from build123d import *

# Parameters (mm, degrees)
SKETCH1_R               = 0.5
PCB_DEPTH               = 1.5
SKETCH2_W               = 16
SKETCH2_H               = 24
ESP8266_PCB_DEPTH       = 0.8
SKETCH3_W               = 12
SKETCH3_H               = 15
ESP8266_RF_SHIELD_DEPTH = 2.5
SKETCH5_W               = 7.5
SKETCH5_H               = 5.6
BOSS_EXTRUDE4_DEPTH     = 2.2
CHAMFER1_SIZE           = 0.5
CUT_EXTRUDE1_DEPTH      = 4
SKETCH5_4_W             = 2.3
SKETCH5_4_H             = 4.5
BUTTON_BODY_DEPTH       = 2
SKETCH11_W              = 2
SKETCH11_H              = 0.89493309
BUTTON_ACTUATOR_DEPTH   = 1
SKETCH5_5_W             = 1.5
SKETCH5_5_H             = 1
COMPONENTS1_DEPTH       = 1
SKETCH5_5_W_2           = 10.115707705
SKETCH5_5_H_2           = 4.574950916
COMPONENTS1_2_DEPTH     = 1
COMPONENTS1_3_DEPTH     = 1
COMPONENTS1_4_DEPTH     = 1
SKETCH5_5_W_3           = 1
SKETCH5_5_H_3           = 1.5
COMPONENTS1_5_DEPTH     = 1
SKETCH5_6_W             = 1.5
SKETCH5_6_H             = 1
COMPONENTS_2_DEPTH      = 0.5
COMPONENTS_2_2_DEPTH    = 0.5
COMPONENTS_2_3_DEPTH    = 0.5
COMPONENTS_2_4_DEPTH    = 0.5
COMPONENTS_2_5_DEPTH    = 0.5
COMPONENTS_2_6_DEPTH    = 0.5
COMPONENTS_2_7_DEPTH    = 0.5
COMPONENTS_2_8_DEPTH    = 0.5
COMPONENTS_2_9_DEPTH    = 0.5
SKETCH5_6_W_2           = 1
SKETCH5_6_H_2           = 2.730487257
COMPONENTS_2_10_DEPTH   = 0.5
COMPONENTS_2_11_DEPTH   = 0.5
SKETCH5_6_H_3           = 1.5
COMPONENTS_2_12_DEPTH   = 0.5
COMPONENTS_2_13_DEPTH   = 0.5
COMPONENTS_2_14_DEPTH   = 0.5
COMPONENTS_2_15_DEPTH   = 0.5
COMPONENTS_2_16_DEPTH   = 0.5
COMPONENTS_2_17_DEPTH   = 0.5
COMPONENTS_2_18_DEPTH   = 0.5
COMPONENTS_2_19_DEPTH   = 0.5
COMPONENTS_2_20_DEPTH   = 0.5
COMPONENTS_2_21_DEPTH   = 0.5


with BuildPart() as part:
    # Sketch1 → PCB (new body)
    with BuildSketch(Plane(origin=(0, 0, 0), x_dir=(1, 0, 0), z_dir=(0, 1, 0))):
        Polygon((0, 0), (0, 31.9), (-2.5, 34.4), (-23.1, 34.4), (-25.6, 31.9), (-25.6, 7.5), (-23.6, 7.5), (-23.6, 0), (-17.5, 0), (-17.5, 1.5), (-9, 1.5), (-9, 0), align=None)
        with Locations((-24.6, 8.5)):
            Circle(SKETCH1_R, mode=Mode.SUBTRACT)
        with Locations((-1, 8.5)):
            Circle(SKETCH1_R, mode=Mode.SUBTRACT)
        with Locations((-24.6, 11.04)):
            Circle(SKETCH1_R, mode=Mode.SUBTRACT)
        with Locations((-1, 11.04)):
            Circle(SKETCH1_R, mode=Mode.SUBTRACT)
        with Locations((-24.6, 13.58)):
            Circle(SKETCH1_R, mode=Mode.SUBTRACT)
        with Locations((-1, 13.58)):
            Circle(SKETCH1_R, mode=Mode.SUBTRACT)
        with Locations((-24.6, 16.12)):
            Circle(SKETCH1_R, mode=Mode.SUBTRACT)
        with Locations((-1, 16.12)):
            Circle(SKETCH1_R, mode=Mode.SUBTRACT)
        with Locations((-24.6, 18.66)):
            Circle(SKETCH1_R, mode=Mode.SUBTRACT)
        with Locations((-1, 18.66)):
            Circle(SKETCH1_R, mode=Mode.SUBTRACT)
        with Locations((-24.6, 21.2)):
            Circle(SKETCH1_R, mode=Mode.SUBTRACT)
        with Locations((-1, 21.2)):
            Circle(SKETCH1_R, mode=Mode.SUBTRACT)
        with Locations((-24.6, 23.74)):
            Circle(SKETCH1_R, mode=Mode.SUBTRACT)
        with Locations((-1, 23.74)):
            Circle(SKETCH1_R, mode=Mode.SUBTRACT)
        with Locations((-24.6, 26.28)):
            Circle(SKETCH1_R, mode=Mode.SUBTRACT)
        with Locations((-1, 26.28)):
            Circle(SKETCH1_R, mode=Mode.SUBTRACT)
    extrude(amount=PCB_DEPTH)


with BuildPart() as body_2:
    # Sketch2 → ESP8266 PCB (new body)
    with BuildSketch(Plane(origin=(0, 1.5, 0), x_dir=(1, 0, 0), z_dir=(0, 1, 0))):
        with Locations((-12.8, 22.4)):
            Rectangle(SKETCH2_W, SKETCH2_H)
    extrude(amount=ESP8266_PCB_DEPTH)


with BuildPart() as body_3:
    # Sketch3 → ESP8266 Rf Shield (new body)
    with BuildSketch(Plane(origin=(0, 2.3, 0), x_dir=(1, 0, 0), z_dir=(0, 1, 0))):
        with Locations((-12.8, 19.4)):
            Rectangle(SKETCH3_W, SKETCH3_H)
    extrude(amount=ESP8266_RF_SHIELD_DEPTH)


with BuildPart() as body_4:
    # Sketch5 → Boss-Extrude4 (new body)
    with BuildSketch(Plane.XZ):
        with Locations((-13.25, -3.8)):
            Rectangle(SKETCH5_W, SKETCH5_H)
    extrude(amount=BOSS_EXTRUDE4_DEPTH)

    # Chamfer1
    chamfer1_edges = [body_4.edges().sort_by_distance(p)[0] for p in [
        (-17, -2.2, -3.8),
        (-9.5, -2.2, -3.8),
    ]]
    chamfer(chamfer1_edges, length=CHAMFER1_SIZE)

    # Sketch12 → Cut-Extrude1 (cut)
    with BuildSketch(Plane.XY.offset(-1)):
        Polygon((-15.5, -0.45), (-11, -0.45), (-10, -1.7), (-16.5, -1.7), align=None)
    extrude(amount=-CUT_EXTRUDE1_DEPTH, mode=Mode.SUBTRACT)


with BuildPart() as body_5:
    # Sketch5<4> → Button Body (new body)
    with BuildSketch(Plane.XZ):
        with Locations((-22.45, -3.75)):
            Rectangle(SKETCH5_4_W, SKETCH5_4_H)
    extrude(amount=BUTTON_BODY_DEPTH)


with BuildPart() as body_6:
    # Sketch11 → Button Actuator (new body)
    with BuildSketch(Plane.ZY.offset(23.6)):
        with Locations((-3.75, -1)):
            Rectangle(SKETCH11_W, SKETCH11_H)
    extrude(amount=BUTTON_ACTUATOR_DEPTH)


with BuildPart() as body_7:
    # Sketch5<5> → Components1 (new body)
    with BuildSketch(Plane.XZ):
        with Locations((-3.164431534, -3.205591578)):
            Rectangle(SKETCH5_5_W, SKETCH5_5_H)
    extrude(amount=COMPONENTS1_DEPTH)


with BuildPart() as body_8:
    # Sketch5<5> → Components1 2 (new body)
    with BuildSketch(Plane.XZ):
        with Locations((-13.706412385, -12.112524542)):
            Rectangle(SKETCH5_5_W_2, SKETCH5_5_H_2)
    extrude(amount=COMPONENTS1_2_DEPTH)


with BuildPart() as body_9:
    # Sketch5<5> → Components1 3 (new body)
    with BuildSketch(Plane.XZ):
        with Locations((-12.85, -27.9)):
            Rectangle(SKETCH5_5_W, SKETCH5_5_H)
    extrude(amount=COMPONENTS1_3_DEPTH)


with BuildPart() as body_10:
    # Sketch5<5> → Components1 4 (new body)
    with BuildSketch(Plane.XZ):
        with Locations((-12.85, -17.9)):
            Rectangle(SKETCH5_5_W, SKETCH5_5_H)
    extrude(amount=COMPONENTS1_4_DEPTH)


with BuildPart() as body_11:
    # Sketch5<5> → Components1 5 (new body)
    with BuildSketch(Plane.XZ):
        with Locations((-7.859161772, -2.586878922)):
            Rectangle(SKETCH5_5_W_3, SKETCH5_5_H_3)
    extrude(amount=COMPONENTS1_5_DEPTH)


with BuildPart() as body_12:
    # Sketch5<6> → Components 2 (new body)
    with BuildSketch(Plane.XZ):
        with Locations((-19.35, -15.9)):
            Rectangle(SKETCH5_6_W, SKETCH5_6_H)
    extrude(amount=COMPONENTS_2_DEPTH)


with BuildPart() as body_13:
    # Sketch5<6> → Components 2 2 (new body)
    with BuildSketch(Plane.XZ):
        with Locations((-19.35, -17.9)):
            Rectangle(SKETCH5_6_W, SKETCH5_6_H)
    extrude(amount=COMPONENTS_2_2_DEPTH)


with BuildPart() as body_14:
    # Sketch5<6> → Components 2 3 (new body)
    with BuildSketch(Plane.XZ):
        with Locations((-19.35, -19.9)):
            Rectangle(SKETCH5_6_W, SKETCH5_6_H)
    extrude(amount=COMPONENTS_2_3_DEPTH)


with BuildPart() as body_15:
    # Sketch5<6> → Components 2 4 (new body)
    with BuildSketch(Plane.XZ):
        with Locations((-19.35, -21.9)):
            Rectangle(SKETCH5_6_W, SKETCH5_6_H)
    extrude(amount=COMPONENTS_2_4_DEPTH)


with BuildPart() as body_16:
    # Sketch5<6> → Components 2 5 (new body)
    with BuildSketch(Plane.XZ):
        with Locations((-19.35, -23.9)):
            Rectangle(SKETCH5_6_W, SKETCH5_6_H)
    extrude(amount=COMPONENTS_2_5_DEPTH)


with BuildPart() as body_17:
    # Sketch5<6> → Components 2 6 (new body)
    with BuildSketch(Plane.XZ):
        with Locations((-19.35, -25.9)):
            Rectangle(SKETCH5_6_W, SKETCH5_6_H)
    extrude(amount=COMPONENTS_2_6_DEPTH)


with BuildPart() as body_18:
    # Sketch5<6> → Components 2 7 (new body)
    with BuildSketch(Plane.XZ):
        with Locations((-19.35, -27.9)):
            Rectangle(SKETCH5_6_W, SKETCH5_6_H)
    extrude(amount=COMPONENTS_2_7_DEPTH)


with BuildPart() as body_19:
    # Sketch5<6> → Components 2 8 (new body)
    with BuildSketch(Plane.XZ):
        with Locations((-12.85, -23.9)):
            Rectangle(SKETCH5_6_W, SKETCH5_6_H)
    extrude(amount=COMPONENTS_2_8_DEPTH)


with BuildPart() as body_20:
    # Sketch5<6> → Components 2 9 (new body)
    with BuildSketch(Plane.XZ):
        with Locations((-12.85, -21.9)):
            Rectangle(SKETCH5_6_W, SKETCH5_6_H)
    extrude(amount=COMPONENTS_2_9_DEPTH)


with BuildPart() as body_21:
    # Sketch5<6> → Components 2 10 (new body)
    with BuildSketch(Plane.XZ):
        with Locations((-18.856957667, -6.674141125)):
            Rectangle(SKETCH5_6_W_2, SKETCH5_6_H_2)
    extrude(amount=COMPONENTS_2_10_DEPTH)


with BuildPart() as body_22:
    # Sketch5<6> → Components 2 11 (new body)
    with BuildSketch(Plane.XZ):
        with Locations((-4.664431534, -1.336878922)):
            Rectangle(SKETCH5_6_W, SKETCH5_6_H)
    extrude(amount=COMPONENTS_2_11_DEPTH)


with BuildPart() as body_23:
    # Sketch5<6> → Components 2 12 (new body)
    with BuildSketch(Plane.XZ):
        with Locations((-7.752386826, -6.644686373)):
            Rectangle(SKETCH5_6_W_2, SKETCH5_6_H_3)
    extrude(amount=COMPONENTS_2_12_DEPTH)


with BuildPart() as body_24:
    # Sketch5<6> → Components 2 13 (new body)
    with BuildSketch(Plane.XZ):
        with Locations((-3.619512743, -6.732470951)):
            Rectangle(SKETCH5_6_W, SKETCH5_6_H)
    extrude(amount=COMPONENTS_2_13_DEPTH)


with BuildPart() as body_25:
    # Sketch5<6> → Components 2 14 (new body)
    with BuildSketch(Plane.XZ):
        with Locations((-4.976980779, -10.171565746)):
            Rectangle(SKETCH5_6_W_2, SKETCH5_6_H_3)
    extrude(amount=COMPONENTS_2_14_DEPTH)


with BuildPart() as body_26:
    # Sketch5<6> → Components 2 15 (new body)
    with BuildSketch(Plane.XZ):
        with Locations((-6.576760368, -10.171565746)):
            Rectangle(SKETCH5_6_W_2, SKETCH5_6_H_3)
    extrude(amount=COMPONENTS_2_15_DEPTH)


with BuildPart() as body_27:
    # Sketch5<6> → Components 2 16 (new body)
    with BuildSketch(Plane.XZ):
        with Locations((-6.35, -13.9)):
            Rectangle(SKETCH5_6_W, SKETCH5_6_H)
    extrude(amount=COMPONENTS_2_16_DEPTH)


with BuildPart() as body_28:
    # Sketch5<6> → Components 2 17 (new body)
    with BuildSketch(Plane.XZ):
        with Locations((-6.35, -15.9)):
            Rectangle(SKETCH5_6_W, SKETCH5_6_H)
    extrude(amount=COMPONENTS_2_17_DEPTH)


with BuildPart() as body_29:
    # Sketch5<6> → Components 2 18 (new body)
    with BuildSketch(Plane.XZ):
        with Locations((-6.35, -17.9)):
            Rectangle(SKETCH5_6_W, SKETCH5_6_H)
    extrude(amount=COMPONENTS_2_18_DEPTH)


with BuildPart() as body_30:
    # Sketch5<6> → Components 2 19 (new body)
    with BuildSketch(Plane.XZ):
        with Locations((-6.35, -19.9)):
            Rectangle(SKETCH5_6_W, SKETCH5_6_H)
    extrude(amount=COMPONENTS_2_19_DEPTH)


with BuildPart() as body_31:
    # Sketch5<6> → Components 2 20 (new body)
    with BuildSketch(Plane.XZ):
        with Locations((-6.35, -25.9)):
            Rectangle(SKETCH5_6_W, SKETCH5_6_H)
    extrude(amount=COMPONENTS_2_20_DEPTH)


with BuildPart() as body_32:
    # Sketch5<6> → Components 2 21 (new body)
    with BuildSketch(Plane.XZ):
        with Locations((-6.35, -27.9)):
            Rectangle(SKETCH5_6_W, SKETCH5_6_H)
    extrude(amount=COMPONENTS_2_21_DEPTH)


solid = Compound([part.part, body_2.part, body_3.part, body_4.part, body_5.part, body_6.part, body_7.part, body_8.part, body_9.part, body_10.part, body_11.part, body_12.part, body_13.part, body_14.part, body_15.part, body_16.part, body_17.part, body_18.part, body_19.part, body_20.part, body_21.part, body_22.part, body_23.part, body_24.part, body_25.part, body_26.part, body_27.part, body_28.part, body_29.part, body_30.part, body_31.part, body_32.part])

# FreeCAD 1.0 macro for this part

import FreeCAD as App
import Part
import Sketcher
from FreeCAD import Vector


def edges_at(feature, points):
    """Names of the edges that pass closest to the given points."""
    edges = feature.Shape.Edges
    near = lambda p: min(range(len(edges)), key=lambda i: edges[i].distToShape(Part.Vertex(*p))[0])
    return sorted({f"Edge{near(p) + 1}" for p in points})


def add_polygon(sketch, points):
    """Adds a closed chain of lines whose ends are joined by coincident constraints."""
    first, n = sketch.GeometryCount, len(points)
    for a, b in zip(points, points[1:] + points[:1]):
        sketch.addGeometry(Part.LineSegment(App.Vector(*a, 0), App.Vector(*b, 0)), False)
    for i in range(n):
        sketch.addConstraint(Sketcher.Constraint("Coincident", first + i, 2, first + (i + 1) % n, 1))

doc = App.newDocument("Part")
body = doc.addObject("PartDesign::Body", "Body")

# Sketch on XZ plane
sketch1 = body.newObject("Sketcher::SketchObject", "Sketch")
sketch1.AttachmentSupport = (doc.getObject("XZ_Plane"), [""])
sketch1.MapMode = "FlatFace"
add_polygon(sketch1, [(0, 0), (0, -31.9), (-2.5, -34.4), (-23.1, -34.4), (-25.6, -31.9), (-25.6, -7.5), (-23.6, -7.5), (-23.6, 0), (-17.5, 0), (-17.5, -1.5), (-9, -1.5), (-9, 0)])  # lines 0-11
sketch1.addGeometry(Part.Circle(Vector(-24.6, -8.5, 0), Vector(0, 0, 1), 0.5), False)  # 12
sketch1.addGeometry(Part.Circle(Vector(-24.6, -11.04, 0), Vector(0, 0, 1), 0.5), False)  # 13
sketch1.addGeometry(Part.Circle(Vector(-24.6, -13.58, 0), Vector(0, 0, 1), 0.5), False)  # 14
sketch1.addGeometry(Part.Circle(Vector(-24.6, -16.12, 0), Vector(0, 0, 1), 0.5), False)  # 15
sketch1.addGeometry(Part.Circle(Vector(-1, -8.5, 0), Vector(0, 0, 1), 0.5), False)  # 16
sketch1.addGeometry(Part.Circle(Vector(-1, -11.04, 0), Vector(0, 0, 1), 0.5), False)  # 17
sketch1.addGeometry(Part.Circle(Vector(-1, -13.58, 0), Vector(0, 0, 1), 0.5), False)  # 18
sketch1.addGeometry(Part.Circle(Vector(-1, -16.12, 0), Vector(0, 0, 1), 0.5), False)  # 19
sketch1.addGeometry(Part.Circle(Vector(-24.6, -18.66, 0), Vector(0, 0, 1), 0.5), False)  # 20
sketch1.addGeometry(Part.Circle(Vector(-24.6, -21.2, 0), Vector(0, 0, 1), 0.5), False)  # 21
sketch1.addGeometry(Part.Circle(Vector(-24.6, -23.74, 0), Vector(0, 0, 1), 0.5), False)  # 22
sketch1.addGeometry(Part.Circle(Vector(-24.6, -26.28, 0), Vector(0, 0, 1), 0.5), False)  # 23
sketch1.addGeometry(Part.Circle(Vector(-1, -18.66, 0), Vector(0, 0, 1), 0.5), False)  # 24
sketch1.addGeometry(Part.Circle(Vector(-1, -21.2, 0), Vector(0, 0, 1), 0.5), False)  # 25
sketch1.addGeometry(Part.Circle(Vector(-1, -23.74, 0), Vector(0, 0, 1), 0.5), False)  # 26
sketch1.addGeometry(Part.Circle(Vector(-1, -26.28, 0), Vector(0, 0, 1), 0.5), False)  # 27
sketch1.addConstraint(Sketcher.Constraint("Vertical", 0))
sketch1.addConstraint(Sketcher.Constraint("Horizontal", 2))
sketch1.addConstraint(Sketcher.Constraint("Vertical", 4))
sketch1.addConstraint(Sketcher.Constraint("Horizontal", 5))
sketch1.addConstraint(Sketcher.Constraint("Vertical", 6))
sketch1.addConstraint(Sketcher.Constraint("Horizontal", 7))
sketch1.addConstraint(Sketcher.Constraint("Vertical", 8))
sketch1.addConstraint(Sketcher.Constraint("Horizontal", 9))
sketch1.addConstraint(Sketcher.Constraint("Vertical", 10))
sketch1.addConstraint(Sketcher.Constraint("Horizontal", 11))
sketch1.addConstraint(Sketcher.Constraint("Coincident", 11, 2, -1, 1))
sketch1.addConstraint(Sketcher.Constraint("Equal", 12, 13))
sketch1.addConstraint(Sketcher.Constraint("Equal", 13, 14))
sketch1.addConstraint(Sketcher.Constraint("Equal", 14, 15))
sketch1.addConstraint(Sketcher.Constraint("Equal", 15, 16))
sketch1.addConstraint(Sketcher.Constraint("Equal", 16, 17))
sketch1.addConstraint(Sketcher.Constraint("Equal", 17, 18))
sketch1.addConstraint(Sketcher.Constraint("Equal", 18, 19))
sketch1.addConstraint(Sketcher.Constraint("Equal", 19, 20))
sketch1.addConstraint(Sketcher.Constraint("Equal", 20, 21))
sketch1.addConstraint(Sketcher.Constraint("Equal", 21, 22))
sketch1.addConstraint(Sketcher.Constraint("Equal", 22, 23))
sketch1.addConstraint(Sketcher.Constraint("Equal", 23, 24))
sketch1.addConstraint(Sketcher.Constraint("Equal", 24, 25))
sketch1.addConstraint(Sketcher.Constraint("Equal", 25, 26))
sketch1.addConstraint(Sketcher.Constraint("Equal", 26, 27))
sketch1.addConstraint(Sketcher.Constraint("PointOnObject", 6, 2, -1))
sketch1.addConstraint(Sketcher.Constraint("Perpendicular", 1, 3))
sketch1.addConstraint(Sketcher.Constraint("Horizontal", 12, 3, 16, 3))
sketch1.addConstraint(Sketcher.Constraint("Horizontal", 13, 3, 17, 3))
sketch1.addConstraint(Sketcher.Constraint("Horizontal", 14, 3, 18, 3))
sketch1.addConstraint(Sketcher.Constraint("Horizontal", 15, 3, 19, 3))
sketch1.addConstraint(Sketcher.Constraint("Horizontal", 20, 3, 24, 3))
sketch1.addConstraint(Sketcher.Constraint("Horizontal", 21, 3, 25, 3))
sketch1.addConstraint(Sketcher.Constraint("Horizontal", 22, 3, 26, 3))
sketch1.addConstraint(Sketcher.Constraint("Horizontal", 23, 3, 27, 3))
sketch1.addConstraint(Sketcher.Constraint("Horizontal", 0, 2, 3, 2))
sketch1.addConstraint(Sketcher.Constraint("Vertical", 12, 3, 13, 3))
sketch1.addConstraint(Sketcher.Constraint("Vertical", 13, 3, 14, 3))
sketch1.addConstraint(Sketcher.Constraint("Vertical", 14, 3, 15, 3))
sketch1.addConstraint(Sketcher.Constraint("Vertical", 16, 3, 17, 3))
sketch1.addConstraint(Sketcher.Constraint("Vertical", 17, 3, 18, 3))
sketch1.addConstraint(Sketcher.Constraint("Vertical", 18, 3, 19, 3))
sketch1.addConstraint(Sketcher.Constraint("Vertical", 15, 3, 20, 3))
sketch1.addConstraint(Sketcher.Constraint("Vertical", 20, 3, 21, 3))
sketch1.addConstraint(Sketcher.Constraint("Vertical", 21, 3, 22, 3))
sketch1.addConstraint(Sketcher.Constraint("Vertical", 22, 3, 23, 3))
sketch1.addConstraint(Sketcher.Constraint("Vertical", 19, 3, 24, 3))
sketch1.addConstraint(Sketcher.Constraint("Vertical", 24, 3, 25, 3))
sketch1.addConstraint(Sketcher.Constraint("Vertical", 25, 3, 26, 3))
sketch1.addConstraint(Sketcher.Constraint("Vertical", 26, 3, 27, 3))
sketch1.addConstraint(Sketcher.Constraint("Equal", 1, 3))
sketch1.addConstraint(Sketcher.Constraint("Diameter", 12, 1.0))
sketch1.addConstraint(Sketcher.Constraint("DistanceX", 5, 1, 5, 2, 2.0))
sketch1.addConstraint(Sketcher.Constraint("DistanceX", 11, 1, 11, 2, 9.0))
sketch1.addConstraint(Sketcher.Constraint("DistanceX", 2, 2, 2, 1, 20.6))
sketch1.addConstraint(Sketcher.Constraint("DistanceX", 7, 1, 7, 2, 6.1))
sketch1.addConstraint(Sketcher.Constraint("DistanceX", 9, 1, 9, 2, 8.5))
sketch1.addConstraint(Sketcher.Constraint("DistanceY", 0, 2, 0, 1, 31.9))
sketch1.addConstraint(Sketcher.Constraint("DistanceY", 4, 1, 4, 2, 24.4))
sketch1.addConstraint(Sketcher.Constraint("DistanceY", 8, 2, 8, 1, 1.5))
sketch1.addConstraint(Sketcher.Constraint("DistanceX", 16, 3, -1, 1, 1.0))
sketch1.addConstraint(Sketcher.Constraint("DistanceX", 3, 2, 23, 3, 1.0))
sketch1.addConstraint(Sketcher.Constraint("DistanceY", 12, 3, 4, 2, 1.0))
sketch1.addConstraint(Sketcher.Constraint("DistanceY", 21, 3, -1, 1, 21.2))
sketch1.addConstraint(Sketcher.Constraint("DistanceY", 22, 3, 13, 3, 12.7))
sketch1.addConstraint(Sketcher.Constraint("DistanceY", 23, 3, 14, 3, 12.7))
sketch1.addConstraint(Sketcher.Constraint("DistanceY", 13, 3, -1, 1, 11.04))
sketch1.addConstraint(Sketcher.Constraint("DistanceY", 14, 3, -1, 1, 13.58))
sketch1.addConstraint(Sketcher.Constraint("DistanceY", 15, 3, -1, 1, 16.12))
sketch1.addConstraint(Sketcher.Constraint("DistanceY", 20, 3, -1, 1, 18.66))
pad1 = body.newObject("PartDesign::Pad", "Pad")
pad1.Profile = sketch1
pad1.Length = 1.5
pad1.Reversed = True
body2 = doc.addObject("PartDesign::Body", "Body001")

# Sketch on XZ plane
sketch2 = body2.newObject("Sketcher::SketchObject", "Sketch001")
sketch2.AttachmentSupport = (doc.getObject("XZ_Plane001"), [""])
sketch2.MapMode = "FlatFace"
sketch2.AttachmentOffset = App.Placement(Vector(0, 0, -1.5), App.Rotation())
add_polygon(sketch2, [(-20.8, -34.4), (-20.8, -10.4), (-4.8, -10.4), (-4.8, -34.4)])  # lines 0-3
sketch2.addConstraint(Sketcher.Constraint("Vertical", 0))
sketch2.addConstraint(Sketcher.Constraint("Horizontal", 1))
sketch2.addConstraint(Sketcher.Constraint("Vertical", 2))
sketch2.addConstraint(Sketcher.Constraint("Horizontal", 3))
sketch2.addConstraint(Sketcher.Constraint("DistanceX", 1, 1, 1, 2, 16.0))
sketch2.addConstraint(Sketcher.Constraint("DistanceY", 0, 1, 0, 2, 24.0))
sketch2.addConstraint(Sketcher.Constraint("DistanceX", 0, 2, -1, 1, 20.8))
sketch2.addConstraint(Sketcher.Constraint("DistanceY", 0, 2, -1, 1, 10.4))
pad2 = body2.newObject("PartDesign::Pad", "Pad001")
pad2.Profile = sketch2
pad2.Length = 0.8
pad2.Reversed = True
body3 = doc.addObject("PartDesign::Body", "Body002")

# Sketch on XZ plane
sketch3 = body3.newObject("Sketcher::SketchObject", "Sketch002")
sketch3.AttachmentSupport = (doc.getObject("XZ_Plane002"), [""])
sketch3.MapMode = "FlatFace"
sketch3.AttachmentOffset = App.Placement(Vector(0, 0, -2.3), App.Rotation())
add_polygon(sketch3, [(-18.8, -26.9), (-18.8, -11.9), (-6.8, -11.9), (-6.8, -26.9)])  # lines 0-3
sketch3.addConstraint(Sketcher.Constraint("Vertical", 0))
sketch3.addConstraint(Sketcher.Constraint("Horizontal", 1))
sketch3.addConstraint(Sketcher.Constraint("Vertical", 2))
sketch3.addConstraint(Sketcher.Constraint("Horizontal", 3))
sketch3.addConstraint(Sketcher.Constraint("DistanceX", 1, 1, 1, 2, 12.0))
sketch3.addConstraint(Sketcher.Constraint("DistanceY", 0, 1, 0, 2, 15.0))
sketch3.addConstraint(Sketcher.Constraint("DistanceX", 0, 2, -1, 1, 18.8))
sketch3.addConstraint(Sketcher.Constraint("DistanceY", 0, 2, -1, 1, 11.9))
pad3 = body3.newObject("PartDesign::Pad", "Pad002")
pad3.Profile = sketch3
pad3.Length = 2.5
pad3.Reversed = True
body4 = doc.addObject("PartDesign::Body", "Body003")

# Sketch on XZ plane
sketch4 = body4.newObject("Sketcher::SketchObject", "Sketch003")
sketch4.AttachmentSupport = (doc.getObject("XZ_Plane003"), [""])
sketch4.MapMode = "FlatFace"
add_polygon(sketch4, [(-17, -1), (-17, -6.6), (-9.5, -6.6), (-9.5, -1)])  # lines 0-3
sketch4.addConstraint(Sketcher.Constraint("Vertical", 0))
sketch4.addConstraint(Sketcher.Constraint("Horizontal", 1))
sketch4.addConstraint(Sketcher.Constraint("Vertical", 2))
sketch4.addConstraint(Sketcher.Constraint("Horizontal", 3))
sketch4.addConstraint(Sketcher.Constraint("DistanceX", 1, 1, 1, 2, 7.5))
sketch4.addConstraint(Sketcher.Constraint("DistanceY", 0, 2, 0, 1, 5.6))
sketch4.addConstraint(Sketcher.Constraint("DistanceX", 0, 2, -1, 1, 17.0))
sketch4.addConstraint(Sketcher.Constraint("DistanceY", 2, 2, -1, 1, 1.0))
pad4 = body4.newObject("PartDesign::Pad", "Pad003")
pad4.Profile = sketch4
pad4.Length = 2.2
doc.recompute()

chamfer = body4.newObject("PartDesign::Chamfer", "Chamfer")
chamfer.Base = (pad4, edges_at(pad4, [(-17, -2.2, -3.8), (-9.5, -2.2, -3.8)]))
chamfer.Size = 0.5

# Sketch on XY plane
sketch5 = body4.newObject("Sketcher::SketchObject", "Sketch004")
sketch5.AttachmentSupport = (doc.getObject("XY_Plane003"), [""])
sketch5.MapMode = "FlatFace"
sketch5.AttachmentOffset = App.Placement(Vector(0, 0, -1), App.Rotation())
add_polygon(sketch5, [(-11, -0.45), (-15.5, -0.45), (-16.5, -1.7), (-10, -1.7)])  # lines 0-3
sketch5.addConstraint(Sketcher.Constraint("Horizontal", 0))
sketch5.addConstraint(Sketcher.Constraint("Horizontal", 2))
sketch5.addConstraint(Sketcher.Constraint("Equal", 1, 3))
sketch5.addConstraint(Sketcher.Constraint("DistanceX", 0, 2, 0, 1, 4.5))
sketch5.addConstraint(Sketcher.Constraint("DistanceX", 2, 1, 2, 2, 6.5))
sketch5.addConstraint(Sketcher.Constraint("DistanceX", 2, 2, -1, 1, 10.0))
sketch5.addConstraint(Sketcher.Constraint("DistanceY", 1, 2, -1, 1, 1.7))
sketch5.addConstraint(Sketcher.Constraint("DistanceY", 0, 2, -1, 1, 0.45))
pocket1 = body4.newObject("PartDesign::Pocket", "Pocket")
pocket1.Profile = sketch5
pocket1.Length = 4
body5 = doc.addObject("PartDesign::Body", "Body004")

# Sketch on XZ plane
sketch6 = body5.newObject("Sketcher::SketchObject", "Sketch005")
sketch6.AttachmentSupport = (doc.getObject("XZ_Plane004"), [""])
sketch6.MapMode = "FlatFace"
add_polygon(sketch6, [(-23.6, -1.5), (-23.6, -6), (-21.3, -6), (-21.3, -1.5)])  # lines 0-3
sketch6.addConstraint(Sketcher.Constraint("Vertical", 0))
sketch6.addConstraint(Sketcher.Constraint("Horizontal", 1))
sketch6.addConstraint(Sketcher.Constraint("Vertical", 2))
sketch6.addConstraint(Sketcher.Constraint("Horizontal", 3))
sketch6.addConstraint(Sketcher.Constraint("DistanceX", 1, 1, 1, 2, 2.3))
sketch6.addConstraint(Sketcher.Constraint("DistanceY", 0, 2, 0, 1, 4.5))
sketch6.addConstraint(Sketcher.Constraint("DistanceY", 0, 2, -1, 1, 6.0))
sketch6.addConstraint(Sketcher.Constraint("DistanceX", 0, 2, -1, 1, 23.6))
pad5 = body5.newObject("PartDesign::Pad", "Pad004")
pad5.Profile = sketch6
pad5.Length = 2
body6 = doc.addObject("PartDesign::Body", "Body005")

# Sketch on YZ plane
sketch7 = body6.newObject("Sketcher::SketchObject", "Sketch006")
sketch7.AttachmentSupport = (doc.getObject("YZ_Plane005"), [""])
sketch7.MapMode = "FlatFace"
sketch7.AttachmentOffset = App.Placement(Vector(0, 0, -23.6), App.Rotation())
add_polygon(sketch7, [(-0.552533, -4.75), (-1.447467, -4.75), (-1.447467, -2.75), (-0.552533, -2.75)])  # lines 0-3
sketch7.addConstraint(Sketcher.Constraint("Horizontal", 0))
sketch7.addConstraint(Sketcher.Constraint("Vertical", 1))
sketch7.addConstraint(Sketcher.Constraint("Horizontal", 2))
sketch7.addConstraint(Sketcher.Constraint("Vertical", 3))
sketch7.addConstraint(Sketcher.Constraint("DistanceY", 1, 1, 1, 2, 2.0))
sketch7.addConstraint(Sketcher.Constraint("DistanceY", 0, 2, -1, 1, 4.75))
sketch7.addConstraint(Sketcher.Constraint("DistanceX", 0, 2, 0, 1, 0.894933))
sketch7.addConstraint(Sketcher.Constraint("DistanceX", 0, 2, -1, 1, 1.447467))
pad6 = body6.newObject("PartDesign::Pad", "Pad005")
pad6.Profile = sketch7
pad6.Length = 1
pad6.Reversed = True
body7 = doc.addObject("PartDesign::Body", "Body006")

# Sketch on XZ plane
sketch8 = body7.newObject("Sketcher::SketchObject", "Sketch007")
sketch8.AttachmentSupport = (doc.getObject("XZ_Plane006"), [""])
sketch8.MapMode = "FlatFace"
add_polygon(sketch8, [(-3.914432, -2.705592), (-3.914432, -3.705592), (-2.414432, -3.705592), (-2.414432, -2.705592)])  # lines 0-3
sketch8.addConstraint(Sketcher.Constraint("Vertical", 0))
sketch8.addConstraint(Sketcher.Constraint("Horizontal", 1))
sketch8.addConstraint(Sketcher.Constraint("Vertical", 2))
sketch8.addConstraint(Sketcher.Constraint("Horizontal", 3))
sketch8.addConstraint(Sketcher.Constraint("DistanceY", 0, 2, 0, 1, 1.0))
sketch8.addConstraint(Sketcher.Constraint("DistanceX", 1, 1, 1, 2, 1.5))
sketch8.addConstraint(Sketcher.Constraint("DistanceX", 0, 2, -1, 1, 3.914432))
sketch8.addConstraint(Sketcher.Constraint("DistanceY", 0, 2, -1, 1, 3.705592))
pad7 = body7.newObject("PartDesign::Pad", "Pad006")
pad7.Profile = sketch8
pad7.Length = 1
body8 = doc.addObject("PartDesign::Body", "Body007")

# Sketch on XZ plane
sketch9 = body8.newObject("Sketcher::SketchObject", "Sketch008")
sketch9.AttachmentSupport = (doc.getObject("XZ_Plane007"), [""])
sketch9.MapMode = "FlatFace"
add_polygon(sketch9, [(-18.764266, -9.825049), (-18.764266, -14.4), (-8.648559, -14.4), (-8.648559, -9.825049)])  # lines 0-3
sketch9.addConstraint(Sketcher.Constraint("Vertical", 0))
sketch9.addConstraint(Sketcher.Constraint("Horizontal", 1))
sketch9.addConstraint(Sketcher.Constraint("Vertical", 2))
sketch9.addConstraint(Sketcher.Constraint("Horizontal", 3))
sketch9.addConstraint(Sketcher.Constraint("DistanceY", 0, 2, -1, 1, 14.4))
sketch9.addConstraint(Sketcher.Constraint("DistanceY", 0, 2, 0, 1, 4.574951))
sketch9.addConstraint(Sketcher.Constraint("DistanceX", 1, 1, 1, 2, 10.115708))
sketch9.addConstraint(Sketcher.Constraint("DistanceX", 1, 2, -1, 1, 8.648559))
pad8 = body8.newObject("PartDesign::Pad", "Pad007")
pad8.Profile = sketch9
pad8.Length = 1
body9 = doc.addObject("PartDesign::Body", "Body008")

# Sketch on XZ plane
sketch10 = body9.newObject("Sketcher::SketchObject", "Sketch009")
sketch10.AttachmentSupport = (doc.getObject("XZ_Plane008"), [""])
sketch10.MapMode = "FlatFace"
add_polygon(sketch10, [(-13.6, -27.4), (-13.6, -28.4), (-12.1, -28.4), (-12.1, -27.4)])  # lines 0-3
sketch10.addConstraint(Sketcher.Constraint("Vertical", 0))
sketch10.addConstraint(Sketcher.Constraint("Horizontal", 1))
sketch10.addConstraint(Sketcher.Constraint("Vertical", 2))
sketch10.addConstraint(Sketcher.Constraint("Horizontal", 3))
sketch10.addConstraint(Sketcher.Constraint("DistanceY", 0, 2, 0, 1, 1.0))
sketch10.addConstraint(Sketcher.Constraint("DistanceX", 1, 1, 1, 2, 1.5))
sketch10.addConstraint(Sketcher.Constraint("DistanceX", 0, 2, -1, 1, 13.6))
sketch10.addConstraint(Sketcher.Constraint("DistanceY", 0, 2, -1, 1, 28.4))
pad9 = body9.newObject("PartDesign::Pad", "Pad008")
pad9.Profile = sketch10
pad9.Length = 1
body10 = doc.addObject("PartDesign::Body", "Body009")

# Sketch on XZ plane
sketch11 = body10.newObject("Sketcher::SketchObject", "Sketch010")
sketch11.AttachmentSupport = (doc.getObject("XZ_Plane009"), [""])
sketch11.MapMode = "FlatFace"
add_polygon(sketch11, [(-13.6, -17.4), (-13.6, -18.4), (-12.1, -18.4), (-12.1, -17.4)])  # lines 0-3
sketch11.addConstraint(Sketcher.Constraint("Vertical", 0))
sketch11.addConstraint(Sketcher.Constraint("Horizontal", 1))
sketch11.addConstraint(Sketcher.Constraint("Vertical", 2))
sketch11.addConstraint(Sketcher.Constraint("Horizontal", 3))
sketch11.addConstraint(Sketcher.Constraint("DistanceY", 0, 2, 0, 1, 1.0))
sketch11.addConstraint(Sketcher.Constraint("DistanceX", 1, 1, 1, 2, 1.5))
sketch11.addConstraint(Sketcher.Constraint("DistanceX", 0, 2, -1, 1, 13.6))
sketch11.addConstraint(Sketcher.Constraint("DistanceY", 0, 2, -1, 1, 18.4))
pad10 = body10.newObject("PartDesign::Pad", "Pad009")
pad10.Profile = sketch11
pad10.Length = 1
body11 = doc.addObject("PartDesign::Body", "Body010")

# Sketch on XZ plane
sketch12 = body11.newObject("Sketcher::SketchObject", "Sketch011")
sketch12.AttachmentSupport = (doc.getObject("XZ_Plane010"), [""])
sketch12.MapMode = "FlatFace"
add_polygon(sketch12, [(-8.359162, -1.836879), (-8.359162, -3.336879), (-7.359162, -3.336879), (-7.359162, -1.836879)])  # lines 0-3
sketch12.addConstraint(Sketcher.Constraint("Vertical", 0))
sketch12.addConstraint(Sketcher.Constraint("Horizontal", 1))
sketch12.addConstraint(Sketcher.Constraint("Vertical", 2))
sketch12.addConstraint(Sketcher.Constraint("Horizontal", 3))
sketch12.addConstraint(Sketcher.Constraint("DistanceX", 1, 1, 1, 2, 1.0))
sketch12.addConstraint(Sketcher.Constraint("DistanceY", 0, 2, 0, 1, 1.5))
sketch12.addConstraint(Sketcher.Constraint("DistanceX", 0, 2, -1, 1, 8.359162))
sketch12.addConstraint(Sketcher.Constraint("DistanceY", 0, 2, -1, 1, 3.336879))
pad11 = body11.newObject("PartDesign::Pad", "Pad010")
pad11.Profile = sketch12
pad11.Length = 1
body12 = doc.addObject("PartDesign::Body", "Body011")

# Sketch on XZ plane
sketch13 = body12.newObject("Sketcher::SketchObject", "Sketch012")
sketch13.AttachmentSupport = (doc.getObject("XZ_Plane011"), [""])
sketch13.MapMode = "FlatFace"
add_polygon(sketch13, [(-20.1, -15.4), (-20.1, -16.4), (-18.6, -16.4), (-18.6, -15.4)])  # lines 0-3
sketch13.addConstraint(Sketcher.Constraint("Vertical", 0))
sketch13.addConstraint(Sketcher.Constraint("Horizontal", 1))
sketch13.addConstraint(Sketcher.Constraint("Vertical", 2))
sketch13.addConstraint(Sketcher.Constraint("Horizontal", 3))
sketch13.addConstraint(Sketcher.Constraint("DistanceY", 0, 2, 0, 1, 1.0))
sketch13.addConstraint(Sketcher.Constraint("DistanceX", 1, 1, 1, 2, 1.5))
sketch13.addConstraint(Sketcher.Constraint("DistanceX", 0, 2, -1, 1, 20.1))
sketch13.addConstraint(Sketcher.Constraint("DistanceY", 0, 2, -1, 1, 16.4))
pad12 = body12.newObject("PartDesign::Pad", "Pad011")
pad12.Profile = sketch13
pad12.Length = 0.5
body13 = doc.addObject("PartDesign::Body", "Body012")

# Sketch on XZ plane
sketch14 = body13.newObject("Sketcher::SketchObject", "Sketch013")
sketch14.AttachmentSupport = (doc.getObject("XZ_Plane012"), [""])
sketch14.MapMode = "FlatFace"
add_polygon(sketch14, [(-20.1, -17.4), (-20.1, -18.4), (-18.6, -18.4), (-18.6, -17.4)])  # lines 0-3
sketch14.addConstraint(Sketcher.Constraint("Vertical", 0))
sketch14.addConstraint(Sketcher.Constraint("Horizontal", 1))
sketch14.addConstraint(Sketcher.Constraint("Vertical", 2))
sketch14.addConstraint(Sketcher.Constraint("Horizontal", 3))
sketch14.addConstraint(Sketcher.Constraint("DistanceY", 0, 2, 0, 1, 1.0))
sketch14.addConstraint(Sketcher.Constraint("DistanceX", 1, 1, 1, 2, 1.5))
sketch14.addConstraint(Sketcher.Constraint("DistanceX", 0, 2, -1, 1, 20.1))
sketch14.addConstraint(Sketcher.Constraint("DistanceY", 0, 2, -1, 1, 18.4))
pad13 = body13.newObject("PartDesign::Pad", "Pad012")
pad13.Profile = sketch14
pad13.Length = 0.5
body14 = doc.addObject("PartDesign::Body", "Body013")

# Sketch on XZ plane
sketch15 = body14.newObject("Sketcher::SketchObject", "Sketch014")
sketch15.AttachmentSupport = (doc.getObject("XZ_Plane013"), [""])
sketch15.MapMode = "FlatFace"
add_polygon(sketch15, [(-20.1, -19.4), (-20.1, -20.4), (-18.6, -20.4), (-18.6, -19.4)])  # lines 0-3
sketch15.addConstraint(Sketcher.Constraint("Vertical", 0))
sketch15.addConstraint(Sketcher.Constraint("Horizontal", 1))
sketch15.addConstraint(Sketcher.Constraint("Vertical", 2))
sketch15.addConstraint(Sketcher.Constraint("Horizontal", 3))
sketch15.addConstraint(Sketcher.Constraint("DistanceY", 0, 2, 0, 1, 1.0))
sketch15.addConstraint(Sketcher.Constraint("DistanceX", 1, 1, 1, 2, 1.5))
sketch15.addConstraint(Sketcher.Constraint("DistanceX", 0, 2, -1, 1, 20.1))
sketch15.addConstraint(Sketcher.Constraint("DistanceY", 0, 2, -1, 1, 20.4))
pad14 = body14.newObject("PartDesign::Pad", "Pad013")
pad14.Profile = sketch15
pad14.Length = 0.5
body15 = doc.addObject("PartDesign::Body", "Body014")

# Sketch on XZ plane
sketch16 = body15.newObject("Sketcher::SketchObject", "Sketch015")
sketch16.AttachmentSupport = (doc.getObject("XZ_Plane014"), [""])
sketch16.MapMode = "FlatFace"
add_polygon(sketch16, [(-20.1, -21.4), (-20.1, -22.4), (-18.6, -22.4), (-18.6, -21.4)])  # lines 0-3
sketch16.addConstraint(Sketcher.Constraint("Vertical", 0))
sketch16.addConstraint(Sketcher.Constraint("Horizontal", 1))
sketch16.addConstraint(Sketcher.Constraint("Vertical", 2))
sketch16.addConstraint(Sketcher.Constraint("Horizontal", 3))
sketch16.addConstraint(Sketcher.Constraint("DistanceY", 0, 2, 0, 1, 1.0))
sketch16.addConstraint(Sketcher.Constraint("DistanceX", 1, 1, 1, 2, 1.5))
sketch16.addConstraint(Sketcher.Constraint("DistanceX", 0, 2, -1, 1, 20.1))
sketch16.addConstraint(Sketcher.Constraint("DistanceY", 0, 2, -1, 1, 22.4))
pad15 = body15.newObject("PartDesign::Pad", "Pad014")
pad15.Profile = sketch16
pad15.Length = 0.5
body16 = doc.addObject("PartDesign::Body", "Body015")

# Sketch on XZ plane
sketch17 = body16.newObject("Sketcher::SketchObject", "Sketch016")
sketch17.AttachmentSupport = (doc.getObject("XZ_Plane015"), [""])
sketch17.MapMode = "FlatFace"
add_polygon(sketch17, [(-20.1, -23.4), (-20.1, -24.4), (-18.6, -24.4), (-18.6, -23.4)])  # lines 0-3
sketch17.addConstraint(Sketcher.Constraint("Vertical", 0))
sketch17.addConstraint(Sketcher.Constraint("Horizontal", 1))
sketch17.addConstraint(Sketcher.Constraint("Vertical", 2))
sketch17.addConstraint(Sketcher.Constraint("Horizontal", 3))
sketch17.addConstraint(Sketcher.Constraint("DistanceY", 0, 2, 0, 1, 1.0))
sketch17.addConstraint(Sketcher.Constraint("DistanceX", 1, 1, 1, 2, 1.5))
sketch17.addConstraint(Sketcher.Constraint("DistanceX", 0, 2, -1, 1, 20.1))
sketch17.addConstraint(Sketcher.Constraint("DistanceY", 0, 2, -1, 1, 24.4))
pad16 = body16.newObject("PartDesign::Pad", "Pad015")
pad16.Profile = sketch17
pad16.Length = 0.5
body17 = doc.addObject("PartDesign::Body", "Body016")

# Sketch on XZ plane
sketch18 = body17.newObject("Sketcher::SketchObject", "Sketch017")
sketch18.AttachmentSupport = (doc.getObject("XZ_Plane016"), [""])
sketch18.MapMode = "FlatFace"
add_polygon(sketch18, [(-20.1, -25.4), (-20.1, -26.4), (-18.6, -26.4), (-18.6, -25.4)])  # lines 0-3
sketch18.addConstraint(Sketcher.Constraint("Vertical", 0))
sketch18.addConstraint(Sketcher.Constraint("Horizontal", 1))
sketch18.addConstraint(Sketcher.Constraint("Vertical", 2))
sketch18.addConstraint(Sketcher.Constraint("Horizontal", 3))
sketch18.addConstraint(Sketcher.Constraint("DistanceY", 0, 2, 0, 1, 1.0))
sketch18.addConstraint(Sketcher.Constraint("DistanceX", 1, 1, 1, 2, 1.5))
sketch18.addConstraint(Sketcher.Constraint("DistanceX", 0, 2, -1, 1, 20.1))
sketch18.addConstraint(Sketcher.Constraint("DistanceY", 0, 2, -1, 1, 26.4))
pad17 = body17.newObject("PartDesign::Pad", "Pad016")
pad17.Profile = sketch18
pad17.Length = 0.5
body18 = doc.addObject("PartDesign::Body", "Body017")

# Sketch on XZ plane
sketch19 = body18.newObject("Sketcher::SketchObject", "Sketch018")
sketch19.AttachmentSupport = (doc.getObject("XZ_Plane017"), [""])
sketch19.MapMode = "FlatFace"
add_polygon(sketch19, [(-20.1, -27.4), (-20.1, -28.4), (-18.6, -28.4), (-18.6, -27.4)])  # lines 0-3
sketch19.addConstraint(Sketcher.Constraint("Vertical", 0))
sketch19.addConstraint(Sketcher.Constraint("Horizontal", 1))
sketch19.addConstraint(Sketcher.Constraint("Vertical", 2))
sketch19.addConstraint(Sketcher.Constraint("Horizontal", 3))
sketch19.addConstraint(Sketcher.Constraint("DistanceY", 0, 2, 0, 1, 1.0))
sketch19.addConstraint(Sketcher.Constraint("DistanceX", 1, 1, 1, 2, 1.5))
sketch19.addConstraint(Sketcher.Constraint("DistanceX", 0, 2, -1, 1, 20.1))
sketch19.addConstraint(Sketcher.Constraint("DistanceY", 0, 2, -1, 1, 28.4))
pad18 = body18.newObject("PartDesign::Pad", "Pad017")
pad18.Profile = sketch19
pad18.Length = 0.5
body19 = doc.addObject("PartDesign::Body", "Body018")

# Sketch on XZ plane
sketch20 = body19.newObject("Sketcher::SketchObject", "Sketch019")
sketch20.AttachmentSupport = (doc.getObject("XZ_Plane018"), [""])
sketch20.MapMode = "FlatFace"
add_polygon(sketch20, [(-13.6, -23.4), (-13.6, -24.4), (-12.1, -24.4), (-12.1, -23.4)])  # lines 0-3
sketch20.addConstraint(Sketcher.Constraint("Vertical", 0))
sketch20.addConstraint(Sketcher.Constraint("Horizontal", 1))
sketch20.addConstraint(Sketcher.Constraint("Vertical", 2))
sketch20.addConstraint(Sketcher.Constraint("Horizontal", 3))
sketch20.addConstraint(Sketcher.Constraint("DistanceY", 0, 2, 0, 1, 1.0))
sketch20.addConstraint(Sketcher.Constraint("DistanceX", 1, 1, 1, 2, 1.5))
sketch20.addConstraint(Sketcher.Constraint("DistanceX", 0, 2, -1, 1, 13.6))
sketch20.addConstraint(Sketcher.Constraint("DistanceY", 0, 2, -1, 1, 24.4))
pad19 = body19.newObject("PartDesign::Pad", "Pad018")
pad19.Profile = sketch20
pad19.Length = 0.5
body20 = doc.addObject("PartDesign::Body", "Body019")

# Sketch on XZ plane
sketch21 = body20.newObject("Sketcher::SketchObject", "Sketch020")
sketch21.AttachmentSupport = (doc.getObject("XZ_Plane019"), [""])
sketch21.MapMode = "FlatFace"
add_polygon(sketch21, [(-13.6, -21.4), (-13.6, -22.4), (-12.1, -22.4), (-12.1, -21.4)])  # lines 0-3
sketch21.addConstraint(Sketcher.Constraint("Vertical", 0))
sketch21.addConstraint(Sketcher.Constraint("Horizontal", 1))
sketch21.addConstraint(Sketcher.Constraint("Vertical", 2))
sketch21.addConstraint(Sketcher.Constraint("Horizontal", 3))
sketch21.addConstraint(Sketcher.Constraint("DistanceY", 0, 2, 0, 1, 1.0))
sketch21.addConstraint(Sketcher.Constraint("DistanceX", 1, 1, 1, 2, 1.5))
sketch21.addConstraint(Sketcher.Constraint("DistanceX", 0, 2, -1, 1, 13.6))
sketch21.addConstraint(Sketcher.Constraint("DistanceY", 0, 2, -1, 1, 22.4))
pad20 = body20.newObject("PartDesign::Pad", "Pad019")
pad20.Profile = sketch21
pad20.Length = 0.5
body21 = doc.addObject("PartDesign::Body", "Body020")

# Sketch on XZ plane
sketch22 = body21.newObject("Sketcher::SketchObject", "Sketch021")
sketch22.AttachmentSupport = (doc.getObject("XZ_Plane020"), [""])
sketch22.MapMode = "FlatFace"
add_polygon(sketch22, [(-19.356958, -5.308897), (-19.356958, -8.039385), (-18.356958, -8.039385), (-18.356958, -5.308897)])  # lines 0-3
sketch22.addConstraint(Sketcher.Constraint("Vertical", 0))
sketch22.addConstraint(Sketcher.Constraint("Horizontal", 1))
sketch22.addConstraint(Sketcher.Constraint("Vertical", 2))
sketch22.addConstraint(Sketcher.Constraint("Horizontal", 3))
sketch22.addConstraint(Sketcher.Constraint("DistanceX", 1, 1, 1, 2, 1.0))
sketch22.addConstraint(Sketcher.Constraint("DistanceY", 0, 2, 0, 1, 2.730487))
sketch22.addConstraint(Sketcher.Constraint("DistanceX", 0, 2, -1, 1, 19.356958))
sketch22.addConstraint(Sketcher.Constraint("DistanceY", 0, 2, -1, 1, 8.039385))
pad21 = body21.newObject("PartDesign::Pad", "Pad020")
pad21.Profile = sketch22
pad21.Length = 0.5
body22 = doc.addObject("PartDesign::Body", "Body021")

# Sketch on XZ plane
sketch23 = body22.newObject("Sketcher::SketchObject", "Sketch022")
sketch23.AttachmentSupport = (doc.getObject("XZ_Plane021"), [""])
sketch23.MapMode = "FlatFace"
add_polygon(sketch23, [(-5.414432, -0.836879), (-5.414432, -1.836879), (-3.914432, -1.836879), (-3.914432, -0.836879)])  # lines 0-3
sketch23.addConstraint(Sketcher.Constraint("Vertical", 0))
sketch23.addConstraint(Sketcher.Constraint("Horizontal", 1))
sketch23.addConstraint(Sketcher.Constraint("Vertical", 2))
sketch23.addConstraint(Sketcher.Constraint("Horizontal", 3))
sketch23.addConstraint(Sketcher.Constraint("DistanceY", 0, 2, 0, 1, 1.0))
sketch23.addConstraint(Sketcher.Constraint("DistanceX", 1, 1, 1, 2, 1.5))
sketch23.addConstraint(Sketcher.Constraint("DistanceX", 0, 2, -1, 1, 5.414432))
sketch23.addConstraint(Sketcher.Constraint("DistanceY", 0, 2, -1, 1, 1.836879))
pad22 = body22.newObject("PartDesign::Pad", "Pad021")
pad22.Profile = sketch23
pad22.Length = 0.5
body23 = doc.addObject("PartDesign::Body", "Body022")

# Sketch on XZ plane
sketch24 = body23.newObject("Sketcher::SketchObject", "Sketch023")
sketch24.AttachmentSupport = (doc.getObject("XZ_Plane022"), [""])
sketch24.MapMode = "FlatFace"
add_polygon(sketch24, [(-8.252387, -5.894686), (-8.252387, -7.394686), (-7.252387, -7.394686), (-7.252387, -5.894686)])  # lines 0-3
sketch24.addConstraint(Sketcher.Constraint("Vertical", 0))
sketch24.addConstraint(Sketcher.Constraint("Horizontal", 1))
sketch24.addConstraint(Sketcher.Constraint("Vertical", 2))
sketch24.addConstraint(Sketcher.Constraint("Horizontal", 3))
sketch24.addConstraint(Sketcher.Constraint("DistanceX", 1, 1, 1, 2, 1.0))
sketch24.addConstraint(Sketcher.Constraint("DistanceY", 0, 2, 0, 1, 1.5))
sketch24.addConstraint(Sketcher.Constraint("DistanceX", 0, 2, -1, 1, 8.252387))
sketch24.addConstraint(Sketcher.Constraint("DistanceY", 0, 2, -1, 1, 7.394686))
pad23 = body23.newObject("PartDesign::Pad", "Pad022")
pad23.Profile = sketch24
pad23.Length = 0.5
body24 = doc.addObject("PartDesign::Body", "Body023")

# Sketch on XZ plane
sketch25 = body24.newObject("Sketcher::SketchObject", "Sketch024")
sketch25.AttachmentSupport = (doc.getObject("XZ_Plane023"), [""])
sketch25.MapMode = "FlatFace"
add_polygon(sketch25, [(-4.369513, -6.232471), (-4.369513, -7.232471), (-2.869513, -7.232471), (-2.869513, -6.232471)])  # lines 0-3
sketch25.addConstraint(Sketcher.Constraint("Vertical", 0))
sketch25.addConstraint(Sketcher.Constraint("Horizontal", 1))
sketch25.addConstraint(Sketcher.Constraint("Vertical", 2))
sketch25.addConstraint(Sketcher.Constraint("Horizontal", 3))
sketch25.addConstraint(Sketcher.Constraint("DistanceY", 0, 2, 0, 1, 1.0))
sketch25.addConstraint(Sketcher.Constraint("DistanceX", 1, 1, 1, 2, 1.5))
sketch25.addConstraint(Sketcher.Constraint("DistanceY", 0, 2, -1, 1, 7.232471))
sketch25.addConstraint(Sketcher.Constraint("DistanceX", 0, 2, -1, 1, 4.369513))
pad24 = body24.newObject("PartDesign::Pad", "Pad023")
pad24.Profile = sketch25
pad24.Length = 0.5
body25 = doc.addObject("PartDesign::Body", "Body024")

# Sketch on XZ plane
sketch26 = body25.newObject("Sketcher::SketchObject", "Sketch025")
sketch26.AttachmentSupport = (doc.getObject("XZ_Plane024"), [""])
sketch26.MapMode = "FlatFace"
add_polygon(sketch26, [(-5.476981, -9.421566), (-5.476981, -10.921566), (-4.476981, -10.921566), (-4.476981, -9.421566)])  # lines 0-3
sketch26.addConstraint(Sketcher.Constraint("Vertical", 0))
sketch26.addConstraint(Sketcher.Constraint("Horizontal", 1))
sketch26.addConstraint(Sketcher.Constraint("Vertical", 2))
sketch26.addConstraint(Sketcher.Constraint("Horizontal", 3))
sketch26.addConstraint(Sketcher.Constraint("DistanceX", 1, 1, 1, 2, 1.0))
sketch26.addConstraint(Sketcher.Constraint("DistanceY", 0, 2, 0, 1, 1.5))
sketch26.addConstraint(Sketcher.Constraint("DistanceX", 0, 2, -1, 1, 5.476981))
sketch26.addConstraint(Sketcher.Constraint("DistanceY", 0, 2, -1, 1, 10.921566))
pad25 = body25.newObject("PartDesign::Pad", "Pad024")
pad25.Profile = sketch26
pad25.Length = 0.5
body26 = doc.addObject("PartDesign::Body", "Body025")

# Sketch on XZ plane
sketch27 = body26.newObject("Sketcher::SketchObject", "Sketch026")
sketch27.AttachmentSupport = (doc.getObject("XZ_Plane025"), [""])
sketch27.MapMode = "FlatFace"
add_polygon(sketch27, [(-7.07676, -9.421566), (-7.07676, -10.921566), (-6.07676, -10.921566), (-6.07676, -9.421566)])  # lines 0-3
sketch27.addConstraint(Sketcher.Constraint("Vertical", 0))
sketch27.addConstraint(Sketcher.Constraint("Horizontal", 1))
sketch27.addConstraint(Sketcher.Constraint("Vertical", 2))
sketch27.addConstraint(Sketcher.Constraint("Horizontal", 3))
sketch27.addConstraint(Sketcher.Constraint("DistanceX", 1, 1, 1, 2, 1.0))
sketch27.addConstraint(Sketcher.Constraint("DistanceY", 0, 2, 0, 1, 1.5))
sketch27.addConstraint(Sketcher.Constraint("DistanceX", 0, 2, -1, 1, 7.07676))
sketch27.addConstraint(Sketcher.Constraint("DistanceY", 0, 2, -1, 1, 10.921566))
pad26 = body26.newObject("PartDesign::Pad", "Pad025")
pad26.Profile = sketch27
pad26.Length = 0.5
body27 = doc.addObject("PartDesign::Body", "Body026")

# Sketch on XZ plane
sketch28 = body27.newObject("Sketcher::SketchObject", "Sketch027")
sketch28.AttachmentSupport = (doc.getObject("XZ_Plane026"), [""])
sketch28.MapMode = "FlatFace"
add_polygon(sketch28, [(-7.1, -13.4), (-7.1, -14.4), (-5.6, -14.4), (-5.6, -13.4)])  # lines 0-3
sketch28.addConstraint(Sketcher.Constraint("Vertical", 0))
sketch28.addConstraint(Sketcher.Constraint("Horizontal", 1))
sketch28.addConstraint(Sketcher.Constraint("Vertical", 2))
sketch28.addConstraint(Sketcher.Constraint("Horizontal", 3))
sketch28.addConstraint(Sketcher.Constraint("DistanceY", 0, 2, 0, 1, 1.0))
sketch28.addConstraint(Sketcher.Constraint("DistanceX", 1, 1, 1, 2, 1.5))
sketch28.addConstraint(Sketcher.Constraint("DistanceX", 0, 2, -1, 1, 7.1))
sketch28.addConstraint(Sketcher.Constraint("DistanceY", 0, 2, -1, 1, 14.4))
pad27 = body27.newObject("PartDesign::Pad", "Pad026")
pad27.Profile = sketch28
pad27.Length = 0.5
body28 = doc.addObject("PartDesign::Body", "Body027")

# Sketch on XZ plane
sketch29 = body28.newObject("Sketcher::SketchObject", "Sketch028")
sketch29.AttachmentSupport = (doc.getObject("XZ_Plane027"), [""])
sketch29.MapMode = "FlatFace"
add_polygon(sketch29, [(-7.1, -15.4), (-7.1, -16.4), (-5.6, -16.4), (-5.6, -15.4)])  # lines 0-3
sketch29.addConstraint(Sketcher.Constraint("Vertical", 0))
sketch29.addConstraint(Sketcher.Constraint("Horizontal", 1))
sketch29.addConstraint(Sketcher.Constraint("Vertical", 2))
sketch29.addConstraint(Sketcher.Constraint("Horizontal", 3))
sketch29.addConstraint(Sketcher.Constraint("DistanceY", 0, 2, 0, 1, 1.0))
sketch29.addConstraint(Sketcher.Constraint("DistanceX", 1, 1, 1, 2, 1.5))
sketch29.addConstraint(Sketcher.Constraint("DistanceX", 0, 2, -1, 1, 7.1))
sketch29.addConstraint(Sketcher.Constraint("DistanceY", 0, 2, -1, 1, 16.4))
pad28 = body28.newObject("PartDesign::Pad", "Pad027")
pad28.Profile = sketch29
pad28.Length = 0.5
body29 = doc.addObject("PartDesign::Body", "Body028")

# Sketch on XZ plane
sketch30 = body29.newObject("Sketcher::SketchObject", "Sketch029")
sketch30.AttachmentSupport = (doc.getObject("XZ_Plane028"), [""])
sketch30.MapMode = "FlatFace"
add_polygon(sketch30, [(-7.1, -17.4), (-7.1, -18.4), (-5.6, -18.4), (-5.6, -17.4)])  # lines 0-3
sketch30.addConstraint(Sketcher.Constraint("Vertical", 0))
sketch30.addConstraint(Sketcher.Constraint("Horizontal", 1))
sketch30.addConstraint(Sketcher.Constraint("Vertical", 2))
sketch30.addConstraint(Sketcher.Constraint("Horizontal", 3))
sketch30.addConstraint(Sketcher.Constraint("DistanceY", 0, 2, 0, 1, 1.0))
sketch30.addConstraint(Sketcher.Constraint("DistanceX", 1, 1, 1, 2, 1.5))
sketch30.addConstraint(Sketcher.Constraint("DistanceX", 0, 2, -1, 1, 7.1))
sketch30.addConstraint(Sketcher.Constraint("DistanceY", 0, 2, -1, 1, 18.4))
pad29 = body29.newObject("PartDesign::Pad", "Pad028")
pad29.Profile = sketch30
pad29.Length = 0.5
body30 = doc.addObject("PartDesign::Body", "Body029")

# Sketch on XZ plane
sketch31 = body30.newObject("Sketcher::SketchObject", "Sketch030")
sketch31.AttachmentSupport = (doc.getObject("XZ_Plane029"), [""])
sketch31.MapMode = "FlatFace"
add_polygon(sketch31, [(-7.1, -19.4), (-7.1, -20.4), (-5.6, -20.4), (-5.6, -19.4)])  # lines 0-3
sketch31.addConstraint(Sketcher.Constraint("Vertical", 0))
sketch31.addConstraint(Sketcher.Constraint("Horizontal", 1))
sketch31.addConstraint(Sketcher.Constraint("Vertical", 2))
sketch31.addConstraint(Sketcher.Constraint("Horizontal", 3))
sketch31.addConstraint(Sketcher.Constraint("DistanceY", 0, 2, 0, 1, 1.0))
sketch31.addConstraint(Sketcher.Constraint("DistanceX", 1, 1, 1, 2, 1.5))
sketch31.addConstraint(Sketcher.Constraint("DistanceX", 0, 2, -1, 1, 7.1))
sketch31.addConstraint(Sketcher.Constraint("DistanceY", 0, 2, -1, 1, 20.4))
pad30 = body30.newObject("PartDesign::Pad", "Pad029")
pad30.Profile = sketch31
pad30.Length = 0.5
body31 = doc.addObject("PartDesign::Body", "Body030")

# Sketch on XZ plane
sketch32 = body31.newObject("Sketcher::SketchObject", "Sketch031")
sketch32.AttachmentSupport = (doc.getObject("XZ_Plane030"), [""])
sketch32.MapMode = "FlatFace"
add_polygon(sketch32, [(-7.1, -25.4), (-7.1, -26.4), (-5.6, -26.4), (-5.6, -25.4)])  # lines 0-3
sketch32.addConstraint(Sketcher.Constraint("Vertical", 0))
sketch32.addConstraint(Sketcher.Constraint("Horizontal", 1))
sketch32.addConstraint(Sketcher.Constraint("Vertical", 2))
sketch32.addConstraint(Sketcher.Constraint("Horizontal", 3))
sketch32.addConstraint(Sketcher.Constraint("DistanceY", 0, 2, 0, 1, 1.0))
sketch32.addConstraint(Sketcher.Constraint("DistanceX", 1, 1, 1, 2, 1.5))
sketch32.addConstraint(Sketcher.Constraint("DistanceX", 0, 2, -1, 1, 7.1))
sketch32.addConstraint(Sketcher.Constraint("DistanceY", 0, 2, -1, 1, 26.4))
pad31 = body31.newObject("PartDesign::Pad", "Pad030")
pad31.Profile = sketch32
pad31.Length = 0.5
body32 = doc.addObject("PartDesign::Body", "Body031")

# Sketch on XZ plane
sketch33 = body32.newObject("Sketcher::SketchObject", "Sketch032")
sketch33.AttachmentSupport = (doc.getObject("XZ_Plane031"), [""])
sketch33.MapMode = "FlatFace"
add_polygon(sketch33, [(-7.1, -27.4), (-7.1, -28.4), (-5.6, -28.4), (-5.6, -27.4)])  # lines 0-3
sketch33.addConstraint(Sketcher.Constraint("Vertical", 0))
sketch33.addConstraint(Sketcher.Constraint("Horizontal", 1))
sketch33.addConstraint(Sketcher.Constraint("Vertical", 2))
sketch33.addConstraint(Sketcher.Constraint("Horizontal", 3))
sketch33.addConstraint(Sketcher.Constraint("DistanceY", 0, 2, 0, 1, 1.0))
sketch33.addConstraint(Sketcher.Constraint("DistanceX", 1, 1, 1, 2, 1.5))
sketch33.addConstraint(Sketcher.Constraint("DistanceX", 0, 2, -1, 1, 7.1))
sketch33.addConstraint(Sketcher.Constraint("DistanceY", 0, 2, -1, 1, 28.4))
pad32 = body32.newObject("PartDesign::Pad", "Pad031")
pad32.Profile = sketch33
pad32.Length = 0.5

doc.recompute()
